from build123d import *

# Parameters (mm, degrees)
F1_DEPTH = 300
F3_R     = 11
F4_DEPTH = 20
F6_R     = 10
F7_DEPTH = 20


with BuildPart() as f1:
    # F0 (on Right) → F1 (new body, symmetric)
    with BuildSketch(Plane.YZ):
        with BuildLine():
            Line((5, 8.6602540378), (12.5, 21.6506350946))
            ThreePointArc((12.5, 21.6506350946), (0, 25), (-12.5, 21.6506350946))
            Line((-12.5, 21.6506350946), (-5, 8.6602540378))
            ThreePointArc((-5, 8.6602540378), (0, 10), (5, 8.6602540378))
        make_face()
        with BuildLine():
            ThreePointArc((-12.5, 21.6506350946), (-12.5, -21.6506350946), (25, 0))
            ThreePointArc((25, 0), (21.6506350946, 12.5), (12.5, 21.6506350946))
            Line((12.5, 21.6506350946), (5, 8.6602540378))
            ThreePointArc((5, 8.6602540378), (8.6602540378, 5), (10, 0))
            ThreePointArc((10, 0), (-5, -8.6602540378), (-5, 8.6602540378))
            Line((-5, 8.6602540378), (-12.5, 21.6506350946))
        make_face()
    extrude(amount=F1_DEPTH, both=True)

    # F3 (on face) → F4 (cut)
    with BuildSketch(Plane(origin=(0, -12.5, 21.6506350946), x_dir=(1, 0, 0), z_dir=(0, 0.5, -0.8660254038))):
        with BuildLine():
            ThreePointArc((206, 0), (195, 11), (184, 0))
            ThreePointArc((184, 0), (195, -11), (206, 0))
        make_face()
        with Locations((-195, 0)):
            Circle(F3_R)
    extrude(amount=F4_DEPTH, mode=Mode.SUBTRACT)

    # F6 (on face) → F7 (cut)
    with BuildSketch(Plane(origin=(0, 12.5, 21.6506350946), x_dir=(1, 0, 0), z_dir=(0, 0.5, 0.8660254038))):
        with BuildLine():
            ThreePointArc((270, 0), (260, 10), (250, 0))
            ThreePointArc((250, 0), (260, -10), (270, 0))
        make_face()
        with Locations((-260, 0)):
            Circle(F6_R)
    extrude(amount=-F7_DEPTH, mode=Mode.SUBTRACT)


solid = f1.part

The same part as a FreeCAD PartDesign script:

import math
import FreeCAD as App
import Part
import Sketcher
from FreeCAD import Vector
Q = App.Units.Quantity

doc = App.newDocument("Part")
body = doc.addObject("PartDesign::Body", "Body")

# Sketch on YZ plane
sketch1 = body.newObject("Sketcher::SketchObject", "Sketch")
sketch1.AttachmentSupport = (doc.getObject("YZ_Plane"), [""])
sketch1.MapMode = "FlatFace"
sketch1.addGeometry([
    Part.ArcOfCircle(Part.Circle(Vector(0, 0, 0), Vector(0, 0, 1), 25), math.radians(60), math.radians(120)),  # 0
    Part.ArcOfCircle(Part.Circle(Vector(0, 0, 0), Vector(0, 0, 1), 25), math.radians(120), math.radians(360)),  # 1
    Part.ArcOfCircle(Part.Circle(Vector(0, 0, 0), Vector(0, 0, 1), 25), math.radians(0), math.radians(60)),  # 2
    Part.ArcOfCircle(Part.Circle(Vector(0, 0, 0), Vector(0, 0, 1), 10), math.radians(60), math.radians(120)),  # 3
    Part.ArcOfCircle(Part.Circle(Vector(0, 0, 0), Vector(0, 0, 1), 10), math.radians(0), math.radians(60)),  # 4
    Part.ArcOfCircle(Part.Circle(Vector(0, 0, 0), Vector(0, 0, 1), 10), math.radians(120), math.radians(360)),  # 5
], False)
sketch1.addConstraint([
    Sketcher.Constraint("Tangent", 0, 2, 1, 1),
    Sketcher.Constraint("Tangent", 1, 2, 2, 1),
    Sketcher.Constraint("Tangent", 2, 2, 0, 1),
    Sketcher.Constraint("Tangent", 3, 1, 4, 2),
    Sketcher.Constraint("Tangent", 4, 1, 5, 2),
    Sketcher.Constraint("Tangent", 5, 1, 3, 2),
    Sketcher.Constraint("Coincident", 0, 3, -1, 1),
    Sketcher.Constraint("Coincident", 3, 3, -1, 1),
    Sketcher.Constraint("PointOnObject", 1, 2, -1),
    Sketcher.Constraint("PointOnObject", 4, 1, -1),
    Sketcher.Constraint("Horizontal", 0, 2, 2, 2),
    Sketcher.Constraint("Horizontal", 3, 1, 5, 1),
    Sketcher.Constraint("Radius", 0, Q("25 mm")),
    Sketcher.Constraint("Radius", 3, Q("10 mm")),
    Sketcher.Constraint("DistanceX", -1, 1, 3, 1, Q("5 mm")),
    Sketcher.Constraint("DistanceX", 0, 2, 2, 2, Q("25 mm")),
])
pad1 = body.newObject("PartDesign::Pad", "Pad")
pad1.Profile = sketch1
pad1.Length = 600
pad1.Midplane = True

# Sketch on an angled plane
sketch2 = body.newObject("Sketcher::SketchObject", "Sketch001")
sketch2.Placement = App.Placement(Vector(0, -12.5, 21.650635), App.Rotation(Vector(1, 0, 0), Vector(0, -0.866025404, -0.5), Vector(0, 0.5, -0.866025404), "ZXY"))
sketch2.addGeometry([
    Part.Circle(Vector(195, 0, 0), Vector(0, 0, 1), 11),
    Part.Circle(Vector(-195, 0, 0), Vector(0, 0, 1), 11),
], False)
sketch2.addConstraint([
    Sketcher.Constraint("Equal", 0, 1),
    Sketcher.Constraint("Symmetric", 0, 3, 1, 3, -1, 1),
    Sketcher.Constraint("PointOnObject", 0, 3, -1),
    Sketcher.Constraint("Diameter", 0, Q("22 mm")),
    Sketcher.Constraint("DistanceX", -1, 1, 0, 3, Q("195 mm")),
])
pocket1 = body.newObject("PartDesign::Pocket", "Pocket")
pocket1.Profile = sketch2
pocket1.Length = 20
pocket1.Reversed = True

# Sketch on an angled plane
sketch3 = body.newObject("Sketcher::SketchObject", "Sketch002")
sketch3.Placement = App.Placement(Vector(0, 12.5, 21.650635), App.Rotation(Vector(1, 0, 0), Vector(0, 0.866025404, -0.5), Vector(0, 0.5, 0.866025404), "ZXY"))
sketch3.addGeometry([
    Part.Circle(Vector(260, 0, 0), Vector(0, 0, 1), 10),
    Part.Circle(Vector(-260, 0, 0), Vector(0, 0, 1), 10),
], False)
sketch3.addConstraint([
    Sketcher.Constraint("Equal", 0, 1),
    Sketcher.Constraint("Symmetric", 0, 3, 1, 3, -1, 1),
    Sketcher.Constraint("PointOnObject", 0, 3, -1),
    Sketcher.Constraint("Diameter", 0, Q("20 mm")),
    Sketcher.Constraint("DistanceX", -1, 1, 0, 3, Q("260 mm")),
])
pocket2 = body.newObject("PartDesign::Pocket", "Pocket001")
pocket2.Profile = sketch3
pocket2.Length = 20

doc.recompute()
